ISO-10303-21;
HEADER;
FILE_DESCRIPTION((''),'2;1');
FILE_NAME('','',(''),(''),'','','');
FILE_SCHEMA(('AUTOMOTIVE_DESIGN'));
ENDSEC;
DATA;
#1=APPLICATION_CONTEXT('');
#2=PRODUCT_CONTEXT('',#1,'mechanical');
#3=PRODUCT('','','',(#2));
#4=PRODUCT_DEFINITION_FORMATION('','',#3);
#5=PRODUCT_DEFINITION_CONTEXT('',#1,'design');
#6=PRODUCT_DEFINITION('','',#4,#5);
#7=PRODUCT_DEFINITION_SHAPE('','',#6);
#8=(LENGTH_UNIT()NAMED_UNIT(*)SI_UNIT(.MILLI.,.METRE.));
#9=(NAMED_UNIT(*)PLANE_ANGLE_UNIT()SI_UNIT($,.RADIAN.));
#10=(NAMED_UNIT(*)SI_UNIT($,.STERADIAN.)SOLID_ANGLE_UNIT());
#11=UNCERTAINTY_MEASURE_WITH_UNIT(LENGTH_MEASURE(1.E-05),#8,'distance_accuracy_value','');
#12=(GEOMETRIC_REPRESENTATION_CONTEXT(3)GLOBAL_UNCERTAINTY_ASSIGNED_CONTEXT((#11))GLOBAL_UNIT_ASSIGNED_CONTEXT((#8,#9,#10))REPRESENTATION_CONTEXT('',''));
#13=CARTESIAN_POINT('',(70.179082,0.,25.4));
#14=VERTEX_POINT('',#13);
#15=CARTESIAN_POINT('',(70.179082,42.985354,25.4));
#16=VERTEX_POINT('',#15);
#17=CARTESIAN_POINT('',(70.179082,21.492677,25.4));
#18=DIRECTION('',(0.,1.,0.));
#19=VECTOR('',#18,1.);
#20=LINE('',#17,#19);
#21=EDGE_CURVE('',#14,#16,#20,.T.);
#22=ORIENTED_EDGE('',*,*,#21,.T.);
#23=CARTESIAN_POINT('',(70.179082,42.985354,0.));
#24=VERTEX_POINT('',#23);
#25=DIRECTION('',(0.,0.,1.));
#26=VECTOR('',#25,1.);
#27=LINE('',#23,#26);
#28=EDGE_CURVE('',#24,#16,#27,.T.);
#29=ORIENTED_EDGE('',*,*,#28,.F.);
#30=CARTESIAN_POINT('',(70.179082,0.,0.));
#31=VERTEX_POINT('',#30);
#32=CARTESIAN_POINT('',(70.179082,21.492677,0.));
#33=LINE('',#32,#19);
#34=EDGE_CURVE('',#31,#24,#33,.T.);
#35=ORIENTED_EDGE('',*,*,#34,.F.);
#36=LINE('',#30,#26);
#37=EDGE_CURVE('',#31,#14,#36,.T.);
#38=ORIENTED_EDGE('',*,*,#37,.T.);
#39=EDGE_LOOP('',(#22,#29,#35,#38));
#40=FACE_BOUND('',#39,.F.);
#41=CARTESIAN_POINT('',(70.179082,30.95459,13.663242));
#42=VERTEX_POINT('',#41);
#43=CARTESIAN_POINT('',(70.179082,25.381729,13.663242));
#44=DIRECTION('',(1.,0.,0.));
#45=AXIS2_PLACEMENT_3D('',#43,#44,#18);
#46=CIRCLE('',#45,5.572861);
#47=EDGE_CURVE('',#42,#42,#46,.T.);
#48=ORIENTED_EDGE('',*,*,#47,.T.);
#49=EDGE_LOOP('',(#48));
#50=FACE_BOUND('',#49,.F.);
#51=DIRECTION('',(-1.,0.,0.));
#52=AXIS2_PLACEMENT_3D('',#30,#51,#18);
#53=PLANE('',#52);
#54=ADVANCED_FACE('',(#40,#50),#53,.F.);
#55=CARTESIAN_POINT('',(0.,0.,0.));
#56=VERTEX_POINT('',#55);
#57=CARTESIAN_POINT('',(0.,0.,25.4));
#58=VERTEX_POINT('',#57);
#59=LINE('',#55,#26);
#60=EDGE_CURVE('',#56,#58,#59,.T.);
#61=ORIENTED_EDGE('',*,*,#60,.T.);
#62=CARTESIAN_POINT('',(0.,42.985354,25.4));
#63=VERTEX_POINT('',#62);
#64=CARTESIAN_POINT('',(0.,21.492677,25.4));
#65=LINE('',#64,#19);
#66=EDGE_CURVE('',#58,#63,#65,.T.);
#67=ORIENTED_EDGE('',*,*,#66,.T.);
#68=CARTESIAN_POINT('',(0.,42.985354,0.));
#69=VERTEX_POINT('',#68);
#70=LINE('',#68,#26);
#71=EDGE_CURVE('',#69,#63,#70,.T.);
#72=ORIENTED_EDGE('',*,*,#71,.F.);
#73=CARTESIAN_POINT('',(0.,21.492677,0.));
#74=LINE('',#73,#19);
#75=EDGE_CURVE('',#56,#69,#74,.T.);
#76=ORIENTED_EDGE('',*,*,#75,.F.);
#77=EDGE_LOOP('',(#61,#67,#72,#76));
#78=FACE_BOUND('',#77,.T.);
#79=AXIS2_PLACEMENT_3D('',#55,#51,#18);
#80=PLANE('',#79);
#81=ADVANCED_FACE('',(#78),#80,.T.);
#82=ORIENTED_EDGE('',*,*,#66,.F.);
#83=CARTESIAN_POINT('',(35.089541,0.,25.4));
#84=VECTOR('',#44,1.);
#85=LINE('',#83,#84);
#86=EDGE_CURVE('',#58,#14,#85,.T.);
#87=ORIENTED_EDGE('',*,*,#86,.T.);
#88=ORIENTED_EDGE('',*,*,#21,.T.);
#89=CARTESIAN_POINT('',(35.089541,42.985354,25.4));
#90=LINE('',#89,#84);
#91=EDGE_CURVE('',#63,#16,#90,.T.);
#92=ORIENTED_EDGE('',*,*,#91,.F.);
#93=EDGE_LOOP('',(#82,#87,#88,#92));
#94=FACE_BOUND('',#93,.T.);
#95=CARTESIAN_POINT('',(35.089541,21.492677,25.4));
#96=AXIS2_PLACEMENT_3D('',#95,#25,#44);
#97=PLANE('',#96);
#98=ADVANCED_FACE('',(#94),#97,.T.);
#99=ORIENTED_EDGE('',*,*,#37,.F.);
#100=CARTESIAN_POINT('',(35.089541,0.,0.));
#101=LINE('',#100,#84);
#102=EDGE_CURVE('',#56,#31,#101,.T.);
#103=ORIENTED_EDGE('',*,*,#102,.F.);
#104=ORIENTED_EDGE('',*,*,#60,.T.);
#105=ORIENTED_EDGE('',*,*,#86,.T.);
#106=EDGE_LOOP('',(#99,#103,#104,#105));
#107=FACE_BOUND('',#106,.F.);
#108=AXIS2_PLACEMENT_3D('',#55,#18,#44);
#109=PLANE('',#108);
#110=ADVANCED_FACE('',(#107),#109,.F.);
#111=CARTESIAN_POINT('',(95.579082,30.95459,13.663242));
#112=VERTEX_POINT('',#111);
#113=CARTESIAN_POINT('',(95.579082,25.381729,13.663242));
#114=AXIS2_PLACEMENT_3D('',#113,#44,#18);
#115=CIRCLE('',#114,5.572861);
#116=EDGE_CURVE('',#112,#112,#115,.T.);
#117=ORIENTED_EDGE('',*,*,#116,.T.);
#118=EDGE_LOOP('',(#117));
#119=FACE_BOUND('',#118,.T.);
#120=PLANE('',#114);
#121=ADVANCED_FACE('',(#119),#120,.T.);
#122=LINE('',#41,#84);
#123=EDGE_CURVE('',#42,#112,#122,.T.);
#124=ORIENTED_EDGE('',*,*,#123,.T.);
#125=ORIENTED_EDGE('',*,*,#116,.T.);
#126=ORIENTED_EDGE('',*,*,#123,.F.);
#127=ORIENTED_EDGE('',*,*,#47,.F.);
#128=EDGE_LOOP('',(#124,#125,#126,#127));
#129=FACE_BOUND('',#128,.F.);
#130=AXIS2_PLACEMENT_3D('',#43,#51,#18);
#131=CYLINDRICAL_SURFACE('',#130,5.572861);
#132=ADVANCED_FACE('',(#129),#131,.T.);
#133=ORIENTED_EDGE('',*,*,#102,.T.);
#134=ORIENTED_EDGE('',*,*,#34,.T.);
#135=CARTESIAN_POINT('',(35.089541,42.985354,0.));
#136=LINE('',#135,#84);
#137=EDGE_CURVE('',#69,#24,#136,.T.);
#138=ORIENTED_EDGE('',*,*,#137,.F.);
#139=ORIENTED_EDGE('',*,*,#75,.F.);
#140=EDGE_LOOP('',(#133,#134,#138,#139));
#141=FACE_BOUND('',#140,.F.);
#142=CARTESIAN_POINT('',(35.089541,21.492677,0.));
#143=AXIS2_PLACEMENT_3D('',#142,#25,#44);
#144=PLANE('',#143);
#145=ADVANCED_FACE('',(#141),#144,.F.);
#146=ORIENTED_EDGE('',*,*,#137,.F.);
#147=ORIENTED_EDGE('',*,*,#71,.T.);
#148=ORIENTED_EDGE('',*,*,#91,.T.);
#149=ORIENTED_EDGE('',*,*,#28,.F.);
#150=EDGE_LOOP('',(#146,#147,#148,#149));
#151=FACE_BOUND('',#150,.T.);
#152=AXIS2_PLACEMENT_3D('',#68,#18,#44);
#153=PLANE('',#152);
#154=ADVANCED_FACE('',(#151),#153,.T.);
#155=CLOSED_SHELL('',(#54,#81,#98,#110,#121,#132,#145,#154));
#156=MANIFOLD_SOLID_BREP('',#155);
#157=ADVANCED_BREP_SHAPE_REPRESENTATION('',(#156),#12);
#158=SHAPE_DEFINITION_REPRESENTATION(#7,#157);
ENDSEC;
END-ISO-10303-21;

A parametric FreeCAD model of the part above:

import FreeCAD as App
import Part
import Sketcher
from FreeCAD import Vector
Q = App.Units.Quantity


def add_polygon(sketch, points):
    """Adds a closed chain of lines whose ends are joined by coincident constraints."""
    first, n = sketch.GeometryCount, len(points)
    for a, b in zip(points, points[1:] + points[:1]):
        sketch.addGeometry(Part.LineSegment(App.Vector(*a, 0), App.Vector(*b, 0)), False)
    for i in range(n):
        sketch.addConstraint(Sketcher.Constraint("Coincident", first + i, 2, first + (i + 1) % n, 1))

doc = App.newDocument("Part")
body = doc.addObject("PartDesign::Body", "Body")

sketch1 = doc.addObject("Sketcher::SketchObject", "Sketch")
body.addObject(sketch1)
sketch1.AttachmentSupport = (doc.XY_Plane, [""])
sketch1.MapMode = "FlatFace"
add_polygon(sketch1, [(0, 42.985354), (0, 0), (70.179082, 0), (70.179082, 42.985354)])
sketch1.addConstraint([
    Sketcher.Constraint("Vertical", 0),
    Sketcher.Constraint("Horizontal", 1),
    Sketcher.Constraint("Vertical", 2),
    Sketcher.Constraint("Horizontal", 3),
    Sketcher.Constraint("Coincident", 0, 2, -1, 1),
    Sketcher.Constraint("DistanceX", 1, 1, 1, 2, 70.179082),
    Sketcher.Constraint("DistanceY", 0, 2, 0, 1, 42.985354),
])
pad1 = doc.addObject("PartDesign::Pad", "Pad")
body.addObject(pad1)
pad1.Profile = sketch1
pad1.Length = Q("1 in")

sketch2 = doc.addObject("Sketcher::SketchObject", "Sketch001")
body.addObject(sketch2)
sketch2.AttachmentSupport = (doc.YZ_Plane, [""])
sketch2.MapMode = "FlatFace"
sketch2.AttachmentOffset = App.Placement(Vector(0, 0, 70.179082), App.Rotation())
sketch2.addGeometry(Part.Circle(Vector(25.381729, 13.663242, 0), Vector(0, 0, 1), 5.572861), False)
sketch2.addConstraint([
    Sketcher.Constraint("Diameter", 0, 11.145722),
    Sketcher.Constraint("DistanceX", -1, 1, 0, 3, 25.381729),
    Sketcher.Constraint("DistanceY", -1, 1, 0, 3, 13.663242),
])
pad2 = doc.addObject("PartDesign::Pad", "Pad001")
body.addObject(pad2)
pad2.Profile = sketch2
pad2.Length = Q("1 in")

doc.recompute()
